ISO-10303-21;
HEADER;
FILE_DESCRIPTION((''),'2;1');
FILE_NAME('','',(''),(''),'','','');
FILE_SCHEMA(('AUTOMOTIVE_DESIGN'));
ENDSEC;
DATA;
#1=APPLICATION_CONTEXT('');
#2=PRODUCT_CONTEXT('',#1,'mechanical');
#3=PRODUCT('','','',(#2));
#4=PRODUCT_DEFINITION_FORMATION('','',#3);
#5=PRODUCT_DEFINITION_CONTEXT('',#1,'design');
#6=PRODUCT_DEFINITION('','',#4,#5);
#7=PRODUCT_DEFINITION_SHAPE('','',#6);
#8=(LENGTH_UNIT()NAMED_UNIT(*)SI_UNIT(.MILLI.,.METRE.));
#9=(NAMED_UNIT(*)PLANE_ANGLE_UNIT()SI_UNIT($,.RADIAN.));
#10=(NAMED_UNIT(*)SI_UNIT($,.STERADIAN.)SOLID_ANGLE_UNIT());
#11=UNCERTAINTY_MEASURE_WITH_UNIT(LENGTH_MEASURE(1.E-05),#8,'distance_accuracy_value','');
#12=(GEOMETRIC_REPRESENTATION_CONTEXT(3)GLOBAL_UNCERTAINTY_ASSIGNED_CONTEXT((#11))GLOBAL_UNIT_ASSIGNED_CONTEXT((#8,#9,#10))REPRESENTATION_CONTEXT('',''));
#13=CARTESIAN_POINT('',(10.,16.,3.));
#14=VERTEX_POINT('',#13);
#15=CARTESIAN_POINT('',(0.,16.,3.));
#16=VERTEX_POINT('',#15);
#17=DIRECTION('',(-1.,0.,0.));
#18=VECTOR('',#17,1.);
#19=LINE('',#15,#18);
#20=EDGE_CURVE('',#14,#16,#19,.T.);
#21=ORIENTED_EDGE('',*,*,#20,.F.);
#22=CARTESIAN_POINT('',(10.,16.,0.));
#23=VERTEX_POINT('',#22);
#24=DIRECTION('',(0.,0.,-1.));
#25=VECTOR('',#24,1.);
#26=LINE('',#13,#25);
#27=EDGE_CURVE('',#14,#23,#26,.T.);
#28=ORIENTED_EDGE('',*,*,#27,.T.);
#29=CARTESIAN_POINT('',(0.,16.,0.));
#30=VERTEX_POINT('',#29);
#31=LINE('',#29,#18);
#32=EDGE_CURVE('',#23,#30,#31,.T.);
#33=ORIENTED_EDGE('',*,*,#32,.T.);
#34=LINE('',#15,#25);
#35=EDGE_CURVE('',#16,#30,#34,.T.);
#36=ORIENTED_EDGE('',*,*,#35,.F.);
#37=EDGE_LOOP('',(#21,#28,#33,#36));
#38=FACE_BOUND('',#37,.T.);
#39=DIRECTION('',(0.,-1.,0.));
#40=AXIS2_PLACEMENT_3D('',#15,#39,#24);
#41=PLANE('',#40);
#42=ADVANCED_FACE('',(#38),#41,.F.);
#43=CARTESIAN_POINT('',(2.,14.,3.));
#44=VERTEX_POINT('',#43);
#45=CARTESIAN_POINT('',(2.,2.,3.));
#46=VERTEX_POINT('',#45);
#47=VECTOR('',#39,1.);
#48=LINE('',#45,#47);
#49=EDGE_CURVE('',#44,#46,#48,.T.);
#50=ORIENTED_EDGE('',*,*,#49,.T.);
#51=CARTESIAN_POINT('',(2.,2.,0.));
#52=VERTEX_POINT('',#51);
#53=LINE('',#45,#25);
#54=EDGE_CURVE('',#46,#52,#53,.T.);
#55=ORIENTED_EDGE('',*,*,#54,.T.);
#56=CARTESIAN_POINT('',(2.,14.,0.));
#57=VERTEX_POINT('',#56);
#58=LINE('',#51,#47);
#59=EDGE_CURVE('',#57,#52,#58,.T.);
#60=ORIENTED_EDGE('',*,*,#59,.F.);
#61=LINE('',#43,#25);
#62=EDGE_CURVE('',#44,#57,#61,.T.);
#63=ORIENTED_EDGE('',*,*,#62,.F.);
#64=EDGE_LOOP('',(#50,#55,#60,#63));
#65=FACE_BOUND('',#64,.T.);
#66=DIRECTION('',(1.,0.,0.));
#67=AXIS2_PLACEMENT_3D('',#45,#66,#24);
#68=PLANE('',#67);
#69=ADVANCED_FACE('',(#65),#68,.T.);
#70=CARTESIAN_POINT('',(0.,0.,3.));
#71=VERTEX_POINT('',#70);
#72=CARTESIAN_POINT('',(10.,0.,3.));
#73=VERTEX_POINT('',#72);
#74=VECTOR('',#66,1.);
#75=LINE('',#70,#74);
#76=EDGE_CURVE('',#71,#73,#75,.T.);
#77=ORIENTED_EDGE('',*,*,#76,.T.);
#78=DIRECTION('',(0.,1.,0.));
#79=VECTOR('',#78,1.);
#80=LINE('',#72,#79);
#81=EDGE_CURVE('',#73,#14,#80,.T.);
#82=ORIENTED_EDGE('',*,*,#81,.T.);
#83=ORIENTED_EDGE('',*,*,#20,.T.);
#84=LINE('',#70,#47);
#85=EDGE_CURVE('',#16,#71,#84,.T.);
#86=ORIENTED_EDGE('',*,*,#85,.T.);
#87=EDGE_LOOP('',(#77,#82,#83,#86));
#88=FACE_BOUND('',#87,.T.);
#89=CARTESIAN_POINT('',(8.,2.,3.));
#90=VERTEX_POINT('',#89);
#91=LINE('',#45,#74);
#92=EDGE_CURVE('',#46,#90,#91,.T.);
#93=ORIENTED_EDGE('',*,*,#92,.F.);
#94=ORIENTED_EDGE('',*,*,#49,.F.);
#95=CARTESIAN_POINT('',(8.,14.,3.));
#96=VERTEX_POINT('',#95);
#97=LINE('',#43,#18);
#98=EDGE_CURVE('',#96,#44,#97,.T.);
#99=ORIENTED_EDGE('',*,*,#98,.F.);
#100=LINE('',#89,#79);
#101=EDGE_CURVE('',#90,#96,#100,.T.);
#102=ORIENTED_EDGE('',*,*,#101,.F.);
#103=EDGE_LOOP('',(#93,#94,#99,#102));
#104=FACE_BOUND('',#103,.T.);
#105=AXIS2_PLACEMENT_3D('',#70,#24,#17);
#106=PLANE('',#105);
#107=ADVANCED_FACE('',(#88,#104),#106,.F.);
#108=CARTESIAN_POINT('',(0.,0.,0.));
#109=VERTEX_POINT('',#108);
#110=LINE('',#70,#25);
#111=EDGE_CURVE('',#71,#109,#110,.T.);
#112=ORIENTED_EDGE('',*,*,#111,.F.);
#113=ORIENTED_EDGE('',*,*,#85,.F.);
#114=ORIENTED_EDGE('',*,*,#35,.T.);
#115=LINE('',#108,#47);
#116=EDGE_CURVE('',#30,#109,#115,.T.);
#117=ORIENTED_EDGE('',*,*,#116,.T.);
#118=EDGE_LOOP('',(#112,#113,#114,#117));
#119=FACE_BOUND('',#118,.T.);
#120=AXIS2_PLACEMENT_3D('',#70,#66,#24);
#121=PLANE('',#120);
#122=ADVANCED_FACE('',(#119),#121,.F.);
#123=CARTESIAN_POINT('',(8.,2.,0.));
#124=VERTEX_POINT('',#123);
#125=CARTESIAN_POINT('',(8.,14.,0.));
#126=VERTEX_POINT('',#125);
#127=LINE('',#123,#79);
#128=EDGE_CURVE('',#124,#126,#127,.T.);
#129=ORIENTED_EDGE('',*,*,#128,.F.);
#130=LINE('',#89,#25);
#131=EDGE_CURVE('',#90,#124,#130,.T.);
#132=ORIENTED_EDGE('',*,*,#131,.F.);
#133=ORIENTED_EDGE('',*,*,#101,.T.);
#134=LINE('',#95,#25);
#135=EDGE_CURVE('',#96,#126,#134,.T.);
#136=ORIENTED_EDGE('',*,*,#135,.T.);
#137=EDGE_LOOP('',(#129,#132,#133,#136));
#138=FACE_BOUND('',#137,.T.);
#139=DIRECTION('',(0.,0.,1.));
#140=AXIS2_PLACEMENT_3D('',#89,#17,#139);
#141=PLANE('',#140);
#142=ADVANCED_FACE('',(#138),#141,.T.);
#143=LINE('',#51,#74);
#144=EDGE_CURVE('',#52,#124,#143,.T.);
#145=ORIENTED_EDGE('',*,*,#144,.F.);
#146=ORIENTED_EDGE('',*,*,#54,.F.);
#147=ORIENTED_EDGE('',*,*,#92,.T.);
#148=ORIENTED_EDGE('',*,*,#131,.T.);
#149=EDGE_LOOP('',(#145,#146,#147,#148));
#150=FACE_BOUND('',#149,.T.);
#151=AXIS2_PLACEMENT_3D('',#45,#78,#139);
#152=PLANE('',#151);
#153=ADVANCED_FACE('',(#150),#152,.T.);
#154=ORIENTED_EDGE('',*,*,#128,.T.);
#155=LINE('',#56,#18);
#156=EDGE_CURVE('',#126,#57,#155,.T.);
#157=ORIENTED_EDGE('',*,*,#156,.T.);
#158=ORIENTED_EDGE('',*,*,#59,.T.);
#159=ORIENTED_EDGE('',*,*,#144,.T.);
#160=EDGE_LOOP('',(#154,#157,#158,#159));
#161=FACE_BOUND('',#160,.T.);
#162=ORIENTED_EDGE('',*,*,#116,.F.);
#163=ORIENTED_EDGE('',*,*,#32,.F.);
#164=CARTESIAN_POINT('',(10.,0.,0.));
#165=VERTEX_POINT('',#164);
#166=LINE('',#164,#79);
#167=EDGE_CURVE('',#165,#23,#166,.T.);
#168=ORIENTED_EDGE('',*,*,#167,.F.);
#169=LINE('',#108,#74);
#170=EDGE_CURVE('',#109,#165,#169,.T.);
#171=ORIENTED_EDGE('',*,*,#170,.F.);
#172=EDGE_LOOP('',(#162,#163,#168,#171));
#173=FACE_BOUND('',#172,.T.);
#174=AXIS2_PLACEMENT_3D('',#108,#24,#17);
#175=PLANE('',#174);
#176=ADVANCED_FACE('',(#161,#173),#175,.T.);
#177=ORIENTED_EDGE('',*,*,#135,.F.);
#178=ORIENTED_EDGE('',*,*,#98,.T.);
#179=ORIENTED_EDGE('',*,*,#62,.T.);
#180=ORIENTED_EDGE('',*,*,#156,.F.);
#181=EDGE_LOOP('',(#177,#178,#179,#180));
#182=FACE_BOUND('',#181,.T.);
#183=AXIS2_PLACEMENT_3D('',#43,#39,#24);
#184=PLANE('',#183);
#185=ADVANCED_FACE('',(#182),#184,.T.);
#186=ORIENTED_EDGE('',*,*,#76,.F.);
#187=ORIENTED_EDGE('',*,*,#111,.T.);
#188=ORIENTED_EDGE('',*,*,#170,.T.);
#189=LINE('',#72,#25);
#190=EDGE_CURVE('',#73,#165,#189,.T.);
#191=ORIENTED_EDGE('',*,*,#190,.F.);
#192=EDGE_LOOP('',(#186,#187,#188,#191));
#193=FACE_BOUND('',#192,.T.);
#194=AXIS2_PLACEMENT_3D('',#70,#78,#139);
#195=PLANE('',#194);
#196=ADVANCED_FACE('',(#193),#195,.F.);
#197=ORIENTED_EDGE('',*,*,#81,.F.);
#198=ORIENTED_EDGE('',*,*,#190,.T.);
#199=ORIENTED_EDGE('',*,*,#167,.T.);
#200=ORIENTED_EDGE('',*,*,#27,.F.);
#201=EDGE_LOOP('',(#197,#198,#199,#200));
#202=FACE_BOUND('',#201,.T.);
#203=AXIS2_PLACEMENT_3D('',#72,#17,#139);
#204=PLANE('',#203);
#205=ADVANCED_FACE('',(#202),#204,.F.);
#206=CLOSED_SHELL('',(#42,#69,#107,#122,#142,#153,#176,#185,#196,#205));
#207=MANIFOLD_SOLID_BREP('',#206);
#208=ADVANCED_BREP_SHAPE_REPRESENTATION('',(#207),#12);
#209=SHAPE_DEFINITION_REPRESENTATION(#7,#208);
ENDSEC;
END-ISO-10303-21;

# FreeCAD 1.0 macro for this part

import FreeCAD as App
import Part
import Sketcher
Q = App.Units.Quantity


def add_polygon(sketch, points):
    """Adds a closed chain of lines whose ends are joined by coincident constraints."""
    first, n = sketch.GeometryCount, len(points)
    for a, b in zip(points, points[1:] + points[:1]):
        sketch.addGeometry(Part.LineSegment(App.Vector(*a, 0), App.Vector(*b, 0)), False)
    for i in range(n):
        sketch.addConstraint(Sketcher.Constraint("Coincident", first + i, 2, first + (i + 1) % n, 1))

doc = App.newDocument("Part")
body = doc.addObject("PartDesign::Body", "Body")

# Sketch on XY plane
sketch1 = body.newObject("Sketcher::SketchObject", "Sketch")
sketch1.AttachmentSupport = (doc.getObject("XY_Plane"), [""])
sketch1.MapMode = "FlatFace"
add_polygon(sketch1, [(0, 16), (0, 0), (10, 0), (10, 16)])  # lines 0-3
add_polygon(sketch1, [(8, 2), (2, 2), (2, 14), (8, 14)])  # lines 4-7
sketch1.addConstraint(Sketcher.Constraint("Vertical", 0))
sketch1.addConstraint(Sketcher.Constraint("Horizontal", 1))
sketch1.addConstraint(Sketcher.Constraint("Vertical", 2))
sketch1.addConstraint(Sketcher.Constraint("Horizontal", 3))
sketch1.addConstraint(Sketcher.Constraint("Horizontal", 4))
sketch1.addConstraint(Sketcher.Constraint("Vertical", 5))
sketch1.addConstraint(Sketcher.Constraint("Horizontal", 6))
sketch1.addConstraint(Sketcher.Constraint("Vertical", 7))
sketch1.addConstraint(Sketcher.Constraint("Coincident", 0, 2, -1, 1))
sketch1.addConstraint(Sketcher.Constraint("DistanceX", 1, 1, 1, 2, Q("10 mm")))
sketch1.addConstraint(Sketcher.Constraint("DistanceX", 4, 2, 4, 1, Q("6 mm")))
sketch1.addConstraint(Sketcher.Constraint("DistanceY", 0, 2, 0, 1, Q("16 mm")))
sketch1.addConstraint(Sketcher.Constraint("DistanceY", 5, 1, 5, 2, Q("12 mm")))
sketch1.addConstraint(Sketcher.Constraint("DistanceX", -1, 1, 4, 2, Q("2 mm")))
sketch1.addConstraint(Sketcher.Constraint("DistanceY", -1, 1, 4, 2, Q("2 mm")))
pad1 = body.newObject("PartDesign::Pad", "Pad")
pad1.Profile = sketch1
pad1.Length = 3

doc.recompute()
